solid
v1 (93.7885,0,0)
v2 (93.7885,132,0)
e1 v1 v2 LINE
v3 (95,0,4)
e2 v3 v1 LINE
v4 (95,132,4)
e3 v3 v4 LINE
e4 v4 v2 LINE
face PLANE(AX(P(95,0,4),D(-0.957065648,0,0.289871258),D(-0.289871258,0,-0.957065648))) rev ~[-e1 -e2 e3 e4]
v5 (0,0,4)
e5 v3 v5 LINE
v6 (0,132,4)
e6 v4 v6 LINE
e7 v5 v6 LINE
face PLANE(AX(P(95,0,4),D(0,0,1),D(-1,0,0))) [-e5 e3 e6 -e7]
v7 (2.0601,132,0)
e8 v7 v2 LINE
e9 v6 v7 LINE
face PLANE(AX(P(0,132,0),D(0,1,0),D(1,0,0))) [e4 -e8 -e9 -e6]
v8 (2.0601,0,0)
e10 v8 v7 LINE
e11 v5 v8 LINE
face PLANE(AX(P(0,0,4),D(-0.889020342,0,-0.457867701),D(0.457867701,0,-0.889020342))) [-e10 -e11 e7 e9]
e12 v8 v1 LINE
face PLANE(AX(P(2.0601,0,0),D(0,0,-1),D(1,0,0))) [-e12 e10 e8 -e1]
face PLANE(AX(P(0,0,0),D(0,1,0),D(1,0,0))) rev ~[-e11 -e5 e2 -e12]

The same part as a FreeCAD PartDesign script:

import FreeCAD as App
import Part
import Sketcher

V = App.Vector
Q = App.Units.Quantity

doc = App.newDocument("Part")
body = doc.addObject("PartDesign::Body", "Body")

sketch1 = doc.addObject("Sketcher::SketchObject", "Sketch")
body.addObject(sketch1)
sketch1.AttachmentSupport = (doc.XZ_Plane, [""])
sketch1.MapMode = "FlatFace"
sketch1.addGeometry(Part.LineSegment(V(93.7885, 0, 0), V(2.0601, 0, 0)), False)
sketch1.addGeometry(Part.LineSegment(V(2.0601, 0, 0), V(0, 4, 0)), False)
sketch1.addGeometry(Part.LineSegment(V(0, 4, 0), V(95, 4, 0)), False)
sketch1.addGeometry(Part.LineSegment(V(95, 4, 0), V(93.7885, 0, 0)), False)
sketch1.addConstraint(Sketcher.Constraint("Coincident", 0, 2, 1, 1))
sketch1.addConstraint(Sketcher.Constraint("Coincident", 1, 2, 2, 1))
sketch1.addConstraint(Sketcher.Constraint("Coincident", 2, 2, 3, 1))
sketch1.addConstraint(Sketcher.Constraint("Coincident", 3, 2, 0, 1))
sketch1.addConstraint(Sketcher.Constraint("Horizontal", 0))
sketch1.addConstraint(Sketcher.Constraint("Horizontal", 2))
sketch1.addConstraint(Sketcher.Constraint("PointOnObject", 0, 2, -1))
sketch1.addConstraint(Sketcher.Constraint("PointOnObject", 1, 2, -2))
sketch1.addConstraint(Sketcher.Constraint("DistanceX", 2, 1, 2, 2, 95.0))
sketch1.addConstraint(Sketcher.Constraint("DistanceY", -1, 1, 1, 2, 4.0))
sketch1.addConstraint(Sketcher.Constraint("Angle", 1, Q("117.2496 deg")))
sketch1.addConstraint(Sketcher.Constraint("Angle", 3, Q("-106.8502 deg")))
pad1 = doc.addObject("PartDesign::Pad", "Pad")
body.addObject(pad1)
pad1.Profile = sketch1
pad1.Length = 132
pad1.Reversed = True

doc.recompute()
